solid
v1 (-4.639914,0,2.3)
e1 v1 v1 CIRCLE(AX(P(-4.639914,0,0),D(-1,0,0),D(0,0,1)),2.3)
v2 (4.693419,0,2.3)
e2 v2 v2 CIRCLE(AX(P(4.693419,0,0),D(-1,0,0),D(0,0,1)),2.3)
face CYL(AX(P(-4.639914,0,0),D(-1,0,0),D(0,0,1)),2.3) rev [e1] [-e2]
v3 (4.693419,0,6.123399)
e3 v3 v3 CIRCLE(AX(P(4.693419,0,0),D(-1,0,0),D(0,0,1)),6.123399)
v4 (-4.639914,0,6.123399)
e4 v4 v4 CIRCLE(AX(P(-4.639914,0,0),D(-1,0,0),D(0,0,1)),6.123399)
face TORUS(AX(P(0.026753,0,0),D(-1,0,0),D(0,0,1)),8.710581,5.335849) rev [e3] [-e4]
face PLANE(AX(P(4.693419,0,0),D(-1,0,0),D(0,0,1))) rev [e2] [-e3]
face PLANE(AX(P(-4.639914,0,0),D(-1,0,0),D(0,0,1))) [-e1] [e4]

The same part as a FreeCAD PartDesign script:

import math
import FreeCAD as App
import Part
import Sketcher
Q = App.Units.Quantity

doc = App.newDocument("Part")
params = doc.addObject("Spreadsheet::Sheet", "Params")
for row, (alias, value) in enumerate([
    ("revolution_angle", "360 deg"),
], start=1):
    params.set(f"A{row}", alias)
    params.set(f"B{row}", "=" + value)
    params.setAlias(f"B{row}", alias)

body = doc.addObject("PartDesign::Body", "Body")

# Sketch on XZ plane
sketch1 = body.newObject("Sketcher::SketchObject", "Sketch")
sketch1.AttachmentSupport = (doc.getObject("XZ_Plane"), [""])
sketch1.MapMode = "FlatFace"
sketch1.addGeometry([
    Part.LineSegment(App.Vector(-4.639914, -6.123399, 0), App.Vector(-4.639914, -2.3, 0)),
    Part.LineSegment(App.Vector(-4.639914, -2.3, 0), App.Vector(4.693419, -2.3, 0)),
    Part.LineSegment(App.Vector(4.693419, -2.3, 0), App.Vector(4.693419, -6.123399, 0)),
    Part.ArcOfCircle(Part.Circle(App.Vector(0.026753, -8.710581, 0), App.Vector(0, 0, 1), 5.335849), math.radians(29.003815), math.radians(150.996185)),
], False)
sketch1.addConstraint([
    Sketcher.Constraint("Coincident", 0, 2, 1, 1),
    Sketcher.Constraint("Coincident", 1, 2, 2, 1),
    Sketcher.Constraint("Coincident", 2, 2, 3, 1),
    Sketcher.Constraint("Coincident", 3, 2, 0, 1),
    Sketcher.Constraint("Vertical", 0),
    Sketcher.Constraint("Horizontal", 1),
    Sketcher.Constraint("Vertical", 2),
    Sketcher.Constraint("Horizontal", 2, 2, 3, 2),
    Sketcher.Constraint("DistanceY", 0, 2, -1, 1, Q("2.3 mm")),
    Sketcher.Constraint("Radius", 3, Q("5.335849 mm")),
    Sketcher.Constraint("DistanceY", 0, 1, 0, 2, Q("3.823399 mm")),
    Sketcher.Constraint("DistanceX", 1, 1, 1, 2, Q("9.333333 mm")),
    Sketcher.Constraint("DistanceX", -1, 1, 1, 2, Q("4.693419 mm")),
])
revolution = body.newObject("PartDesign::Revolution", "Revolution")
revolution.Profile = sketch1
revolution.ReferenceAxis = (sketch1, ["H_Axis"])
revolution.setExpression("Angle", "Params.revolution_angle")

doc.recompute()
